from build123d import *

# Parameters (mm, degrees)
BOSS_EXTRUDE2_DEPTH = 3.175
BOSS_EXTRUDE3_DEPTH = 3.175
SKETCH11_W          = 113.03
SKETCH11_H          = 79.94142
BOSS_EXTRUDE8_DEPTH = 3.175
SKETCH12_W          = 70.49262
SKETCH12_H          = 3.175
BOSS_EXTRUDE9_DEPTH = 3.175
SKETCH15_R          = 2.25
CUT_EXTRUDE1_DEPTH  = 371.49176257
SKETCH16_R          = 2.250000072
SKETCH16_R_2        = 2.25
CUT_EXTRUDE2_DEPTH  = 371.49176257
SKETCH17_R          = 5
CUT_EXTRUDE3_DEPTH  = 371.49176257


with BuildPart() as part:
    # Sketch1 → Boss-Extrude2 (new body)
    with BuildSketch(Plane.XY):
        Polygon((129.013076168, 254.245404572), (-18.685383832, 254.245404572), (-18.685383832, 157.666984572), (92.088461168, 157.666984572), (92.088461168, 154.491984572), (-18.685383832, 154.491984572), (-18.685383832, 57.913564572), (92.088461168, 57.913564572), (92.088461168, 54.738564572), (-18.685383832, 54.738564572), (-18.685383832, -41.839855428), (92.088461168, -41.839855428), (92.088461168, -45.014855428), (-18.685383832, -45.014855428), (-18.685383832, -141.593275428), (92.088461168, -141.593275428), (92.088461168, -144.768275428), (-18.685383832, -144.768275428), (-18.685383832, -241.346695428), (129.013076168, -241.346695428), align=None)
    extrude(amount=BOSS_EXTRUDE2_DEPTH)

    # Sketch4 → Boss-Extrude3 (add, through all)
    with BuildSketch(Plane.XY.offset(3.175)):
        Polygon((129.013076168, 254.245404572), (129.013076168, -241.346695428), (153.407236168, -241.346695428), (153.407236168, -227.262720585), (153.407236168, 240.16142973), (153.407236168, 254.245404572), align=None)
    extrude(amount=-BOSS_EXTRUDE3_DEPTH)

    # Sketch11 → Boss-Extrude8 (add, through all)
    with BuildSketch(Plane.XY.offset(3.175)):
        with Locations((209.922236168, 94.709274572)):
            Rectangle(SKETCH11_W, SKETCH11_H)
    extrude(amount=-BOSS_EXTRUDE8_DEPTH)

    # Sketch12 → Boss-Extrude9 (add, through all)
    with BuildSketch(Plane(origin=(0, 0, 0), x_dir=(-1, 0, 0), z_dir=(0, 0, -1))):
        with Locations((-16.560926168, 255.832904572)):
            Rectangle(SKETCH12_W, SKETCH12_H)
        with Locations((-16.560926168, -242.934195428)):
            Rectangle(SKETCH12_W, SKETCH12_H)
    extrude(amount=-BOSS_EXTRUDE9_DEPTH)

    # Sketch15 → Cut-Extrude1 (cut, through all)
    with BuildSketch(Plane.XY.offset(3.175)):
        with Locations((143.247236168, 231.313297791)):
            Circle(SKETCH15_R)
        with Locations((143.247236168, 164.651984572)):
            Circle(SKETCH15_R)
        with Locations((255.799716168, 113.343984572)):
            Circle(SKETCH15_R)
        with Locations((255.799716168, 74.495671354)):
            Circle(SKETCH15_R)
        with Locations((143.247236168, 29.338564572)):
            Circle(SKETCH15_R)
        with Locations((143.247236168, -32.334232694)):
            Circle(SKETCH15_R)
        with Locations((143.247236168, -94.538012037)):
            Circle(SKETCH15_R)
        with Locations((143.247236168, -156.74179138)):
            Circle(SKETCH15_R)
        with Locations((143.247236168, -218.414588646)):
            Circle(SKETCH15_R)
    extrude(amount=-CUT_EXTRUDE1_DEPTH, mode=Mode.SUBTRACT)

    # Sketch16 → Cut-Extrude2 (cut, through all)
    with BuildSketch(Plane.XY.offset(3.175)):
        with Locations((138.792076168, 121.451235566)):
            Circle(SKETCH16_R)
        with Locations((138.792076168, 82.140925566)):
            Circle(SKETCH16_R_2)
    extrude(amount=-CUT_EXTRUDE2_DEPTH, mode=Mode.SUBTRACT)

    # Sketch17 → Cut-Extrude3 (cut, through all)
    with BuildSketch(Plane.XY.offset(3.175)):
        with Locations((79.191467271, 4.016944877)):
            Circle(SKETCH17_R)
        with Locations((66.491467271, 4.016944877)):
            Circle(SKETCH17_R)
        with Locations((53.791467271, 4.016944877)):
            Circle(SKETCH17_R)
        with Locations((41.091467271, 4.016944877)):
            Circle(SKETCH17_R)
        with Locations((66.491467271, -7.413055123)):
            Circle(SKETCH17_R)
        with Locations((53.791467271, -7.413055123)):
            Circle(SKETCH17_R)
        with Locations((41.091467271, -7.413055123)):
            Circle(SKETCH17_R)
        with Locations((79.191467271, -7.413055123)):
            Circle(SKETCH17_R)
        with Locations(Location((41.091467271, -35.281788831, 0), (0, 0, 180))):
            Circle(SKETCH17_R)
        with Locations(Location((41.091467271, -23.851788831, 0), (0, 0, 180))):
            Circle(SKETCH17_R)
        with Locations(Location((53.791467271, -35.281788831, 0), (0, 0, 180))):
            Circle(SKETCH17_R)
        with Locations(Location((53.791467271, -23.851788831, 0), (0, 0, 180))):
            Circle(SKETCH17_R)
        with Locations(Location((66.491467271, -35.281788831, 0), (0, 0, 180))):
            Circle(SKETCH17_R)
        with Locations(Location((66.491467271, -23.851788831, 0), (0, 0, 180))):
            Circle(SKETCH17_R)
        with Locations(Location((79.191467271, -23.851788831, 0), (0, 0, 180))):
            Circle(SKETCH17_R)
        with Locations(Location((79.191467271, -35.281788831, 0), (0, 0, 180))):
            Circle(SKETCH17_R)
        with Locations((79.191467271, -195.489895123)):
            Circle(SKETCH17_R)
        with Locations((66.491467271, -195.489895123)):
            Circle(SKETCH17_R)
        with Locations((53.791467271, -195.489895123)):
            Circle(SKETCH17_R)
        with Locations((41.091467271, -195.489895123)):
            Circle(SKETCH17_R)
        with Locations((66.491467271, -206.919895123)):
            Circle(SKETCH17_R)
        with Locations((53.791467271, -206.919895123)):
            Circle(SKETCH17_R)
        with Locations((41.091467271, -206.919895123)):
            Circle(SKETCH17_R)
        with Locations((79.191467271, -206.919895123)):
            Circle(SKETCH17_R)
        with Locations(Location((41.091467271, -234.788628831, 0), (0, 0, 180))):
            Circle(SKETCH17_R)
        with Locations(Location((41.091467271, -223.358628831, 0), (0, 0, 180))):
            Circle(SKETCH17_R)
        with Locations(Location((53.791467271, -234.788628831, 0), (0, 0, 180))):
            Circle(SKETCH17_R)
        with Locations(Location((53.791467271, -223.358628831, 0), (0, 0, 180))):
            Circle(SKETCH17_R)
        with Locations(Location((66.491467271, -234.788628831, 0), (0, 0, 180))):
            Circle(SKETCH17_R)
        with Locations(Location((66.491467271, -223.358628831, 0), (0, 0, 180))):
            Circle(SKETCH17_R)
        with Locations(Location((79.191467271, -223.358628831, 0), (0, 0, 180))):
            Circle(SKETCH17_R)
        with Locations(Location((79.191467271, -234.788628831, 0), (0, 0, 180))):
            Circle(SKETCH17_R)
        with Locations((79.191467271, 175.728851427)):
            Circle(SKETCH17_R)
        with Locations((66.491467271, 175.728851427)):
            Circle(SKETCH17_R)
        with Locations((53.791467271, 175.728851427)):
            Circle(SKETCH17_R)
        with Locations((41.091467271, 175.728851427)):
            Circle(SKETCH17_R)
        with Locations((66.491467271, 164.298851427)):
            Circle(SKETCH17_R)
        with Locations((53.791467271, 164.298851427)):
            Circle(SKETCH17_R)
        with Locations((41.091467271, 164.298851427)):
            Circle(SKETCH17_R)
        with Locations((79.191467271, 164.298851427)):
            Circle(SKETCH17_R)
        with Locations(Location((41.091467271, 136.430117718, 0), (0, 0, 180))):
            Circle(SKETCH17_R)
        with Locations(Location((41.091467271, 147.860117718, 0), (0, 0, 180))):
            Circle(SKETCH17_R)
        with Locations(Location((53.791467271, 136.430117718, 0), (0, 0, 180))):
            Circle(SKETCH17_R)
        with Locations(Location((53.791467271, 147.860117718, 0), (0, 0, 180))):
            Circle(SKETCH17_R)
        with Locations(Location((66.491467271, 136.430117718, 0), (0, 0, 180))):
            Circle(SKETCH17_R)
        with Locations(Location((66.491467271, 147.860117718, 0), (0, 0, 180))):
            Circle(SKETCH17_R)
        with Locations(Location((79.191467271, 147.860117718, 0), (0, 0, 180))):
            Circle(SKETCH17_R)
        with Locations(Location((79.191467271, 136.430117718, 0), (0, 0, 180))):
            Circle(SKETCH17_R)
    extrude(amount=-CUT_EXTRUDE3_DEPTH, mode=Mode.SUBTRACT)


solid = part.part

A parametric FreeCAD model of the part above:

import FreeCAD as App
import Part
import Sketcher
Q = App.Units.Quantity


def add_polygon(sketch, points):
    """Adds a closed chain of lines whose ends are joined by coincident constraints."""
    first, n = sketch.GeometryCount, len(points)
    for a, b in zip(points, points[1:] + points[:1]):
        sketch.addGeometry(Part.LineSegment(App.Vector(*a, 0), App.Vector(*b, 0)), False)
    for i in range(n):
        sketch.addConstraint(Sketcher.Constraint("Coincident", first + i, 2, first + (i + 1) % n, 1))

doc = App.newDocument("Part")
body = doc.addObject("PartDesign::Body", "Body")

# Sketch on XY plane
sketch1 = doc.addObject("Sketcher::SketchObject", "Sketch")
body.addObject(sketch1)
sketch1.AttachmentSupport = (doc.XY_Plane, [""])
sketch1.MapMode = "FlatFace"
add_polygon(sketch1, [(129, 254.2), (-18.7, 254.2), (-18.7, 157.7), (92.1, 157.7), (92.1, 154.5), (-18.7, 154.5), (-18.7, 57.9), (92.1, 57.9), (92.1, 54.7), (-18.7, 54.7), (-18.7, -41.8), (92.1, -41.8), (92.1, -45), (-18.7, -45), (-18.7, -141.6), (92.1, -141.6), (92.1, -144.8), (-18.7, -144.8), (-18.7, -241.3), (129, -241.3)])  # lines 0-19
sketch1.addConstraint(Sketcher.Constraint("Horizontal", 0))
sketch1.addConstraint(Sketcher.Constraint("Vertical", 1))
sketch1.addConstraint(Sketcher.Constraint("Horizontal", 2))
sketch1.addConstraint(Sketcher.Constraint("Vertical", 3))
sketch1.addConstraint(Sketcher.Constraint("Horizontal", 4))
sketch1.addConstraint(Sketcher.Constraint("Vertical", 5))
sketch1.addConstraint(Sketcher.Constraint("Horizontal", 6))
sketch1.addConstraint(Sketcher.Constraint("Vertical", 7))
sketch1.addConstraint(Sketcher.Constraint("Horizontal", 8))
sketch1.addConstraint(Sketcher.Constraint("Vertical", 9))
sketch1.addConstraint(Sketcher.Constraint("Horizontal", 10))
sketch1.addConstraint(Sketcher.Constraint("Vertical", 11))
sketch1.addConstraint(Sketcher.Constraint("Horizontal", 12))
sketch1.addConstraint(Sketcher.Constraint("Vertical", 13))
sketch1.addConstraint(Sketcher.Constraint("Horizontal", 14))
sketch1.addConstraint(Sketcher.Constraint("Vertical", 15))
sketch1.addConstraint(Sketcher.Constraint("Horizontal", 16))
sketch1.addConstraint(Sketcher.Constraint("Vertical", 17))
sketch1.addConstraint(Sketcher.Constraint("Horizontal", 18))
sketch1.addConstraint(Sketcher.Constraint("Vertical", 19))
sketch1.addConstraint(Sketcher.Constraint("Vertical", 1, 2, 4, 2))
sketch1.addConstraint(Sketcher.Constraint("Vertical", 3, 2, 6, 2))
sketch1.addConstraint(Sketcher.Constraint("Vertical", 5, 2, 8, 2))
sketch1.addConstraint(Sketcher.Constraint("Vertical", 7, 2, 10, 2))
sketch1.addConstraint(Sketcher.Constraint("Vertical", 9, 2, 12, 2))
sketch1.addConstraint(Sketcher.Constraint("Vertical", 11, 2, 14, 2))
sketch1.addConstraint(Sketcher.Constraint("Vertical", 13, 2, 16, 2))
sketch1.addConstraint(Sketcher.Constraint("Equal", 1, 5))
sketch1.addConstraint(Sketcher.Constraint("Equal", 3, 7))
sketch1.addConstraint(Sketcher.Constraint("Equal", 5, 9))
sketch1.addConstraint(Sketcher.Constraint("Equal", 7, 11))
sketch1.addConstraint(Sketcher.Constraint("Equal", 9, 13))
sketch1.addConstraint(Sketcher.Constraint("Equal", 11, 15))
sketch1.addConstraint(Sketcher.Constraint("Equal", 13, 17))
sketch1.addConstraint(Sketcher.Constraint("DistanceY", 3, 2, 3, 1, Q("3.175 mm")))
sketch1.addConstraint(Sketcher.Constraint("DistanceY", 19, 1, 19, 2, Q("495.5921 mm")))
sketch1.addConstraint(Sketcher.Constraint("DistanceX", 0, 2, 0, 1, Q("147.69846 mm")))
sketch1.addConstraint(Sketcher.Constraint("DistanceX", 2, 1, 2, 2, Q("110.773845 mm")))
sketch1.addConstraint(Sketcher.Constraint("DistanceX", -1, 1, 2, 2, Q("92.088461 mm")))
sketch1.addConstraint(Sketcher.Constraint("DistanceY", -1, 1, 0, 2, Q("254.245405 mm")))
pad1 = doc.addObject("PartDesign::Pad", "Pad")
body.addObject(pad1)
pad1.Profile = sketch1
pad1.Length = 3.175

# Sketch on XY plane
sketch2 = doc.addObject("Sketcher::SketchObject", "Sketch001")
body.addObject(sketch2)
sketch2.AttachmentSupport = (doc.XY_Plane, [""])
sketch2.MapMode = "FlatFace"
sketch2.AttachmentOffset = App.Placement(App.Vector(0, 0, 3.175), App.Rotation())
add_polygon(sketch2, [(129, 254), (129, -241), (153, -241), (153, 254)])  # lines 0-3
sketch2.addConstraint(Sketcher.Constraint("Vertical", 0))
sketch2.addConstraint(Sketcher.Constraint("Horizontal", 1))
sketch2.addConstraint(Sketcher.Constraint("Vertical", 2))
sketch2.addConstraint(Sketcher.Constraint("Horizontal", 3))
sketch2.addConstraint(Sketcher.Constraint("DistanceY", 0, 2, 0, 1, Q("495.5921 mm")))
sketch2.addConstraint(Sketcher.Constraint("DistanceX", 1, 1, 1, 2, Q("24.39416 mm")))
sketch2.addConstraint(Sketcher.Constraint("DistanceX", -1, 1, 0, 2, Q("129.013076 mm")))
sketch2.addConstraint(Sketcher.Constraint("DistanceY", 0, 2, -1, 1, Q("241.346695 mm")))
pad2 = doc.addObject("PartDesign::Pad", "Pad001")
body.addObject(pad2)
pad2.Profile = sketch2
pad2.Length = 3.175
pad2.Reversed = True

# Sketch on XY plane
sketch3 = doc.addObject("Sketcher::SketchObject", "Sketch002")
body.addObject(sketch3)
sketch3.AttachmentSupport = (doc.XY_Plane, [""])
sketch3.MapMode = "FlatFace"
sketch3.AttachmentOffset = App.Placement(App.Vector(0, 0, 3.175), App.Rotation())
add_polygon(sketch3, [(153, 135), (153, 55), (266, 55), (266, 135)])  # lines 0-3
sketch3.addConstraint(Sketcher.Constraint("Vertical", 0))
sketch3.addConstraint(Sketcher.Constraint("Horizontal", 1))
sketch3.addConstraint(Sketcher.Constraint("Vertical", 2))
sketch3.addConstraint(Sketcher.Constraint("Horizontal", 3))
sketch3.addConstraint(Sketcher.Constraint("DistanceX", 1, 1, 1, 2, Q("113.03 mm")))
sketch3.addConstraint(Sketcher.Constraint("DistanceY", 0, 2, 0, 1, Q("79.94142 mm")))
sketch3.addConstraint(Sketcher.Constraint("DistanceX", -1, 1, 0, 2, Q("153.407236 mm")))
sketch3.addConstraint(Sketcher.Constraint("DistanceY", -1, 1, 0, 2, Q("54.738565 mm")))
pad3 = doc.addObject("PartDesign::Pad", "Pad002")
body.addObject(pad3)
pad3.Profile = sketch3
pad3.Length = 3.175
pad3.Reversed = True

# Sketch on XY plane
sketch4 = doc.addObject("Sketcher::SketchObject", "Sketch003")
body.addObject(sketch4)
sketch4.AttachmentSupport = (doc.XY_Plane, [""])
sketch4.MapMode = "FlatFace"
add_polygon(sketch4, [(51.8, 257.4), (51.8, 254.2), (-18.7, 254.2), (-18.7, 257.4)])  # lines 0-3
add_polygon(sketch4, [(51.8, -241.3), (51.8, -244.5), (-18.7, -244.5), (-18.7, -241.3)])  # lines 4-7
sketch4.addConstraint(Sketcher.Constraint("Vertical", 0))
sketch4.addConstraint(Sketcher.Constraint("Horizontal", 1))
sketch4.addConstraint(Sketcher.Constraint("Vertical", 2))
sketch4.addConstraint(Sketcher.Constraint("Horizontal", 3))
sketch4.addConstraint(Sketcher.Constraint("Vertical", 4))
sketch4.addConstraint(Sketcher.Constraint("Horizontal", 5))
sketch4.addConstraint(Sketcher.Constraint("Vertical", 6))
sketch4.addConstraint(Sketcher.Constraint("Horizontal", 7))
sketch4.addConstraint(Sketcher.Constraint("Vertical", 3, 2, 4, 2))
sketch4.addConstraint(Sketcher.Constraint("Vertical", 2, 2, 5, 2))
sketch4.addConstraint(Sketcher.Constraint("Equal", 2, 4))
sketch4.addConstraint(Sketcher.Constraint("DistanceY", 0, 2, 0, 1, Q("3.175 mm")))
sketch4.addConstraint(Sketcher.Constraint("DistanceX", 1, 2, 1, 1, Q("70.49262 mm")))
sketch4.addConstraint(Sketcher.Constraint("DistanceY", 4, 2, 0, 2, Q("498.7671 mm")))
sketch4.addConstraint(Sketcher.Constraint("DistanceX", -1, 1, 0, 2, Q("51.807236 mm")))
sketch4.addConstraint(Sketcher.Constraint("DistanceY", -1, 1, 0, 2, Q("254.245405 mm")))
pad4 = doc.addObject("PartDesign::Pad", "Pad003")
body.addObject(pad4)
pad4.Profile = sketch4
pad4.Type = "UpToLast"

# Sketch on XY plane
sketch5 = doc.addObject("Sketcher::SketchObject", "Sketch004")
body.addObject(sketch5)
sketch5.AttachmentSupport = (doc.XY_Plane, [""])
sketch5.MapMode = "FlatFace"
sketch5.AttachmentOffset = App.Placement(App.Vector(0, 0, 3.175), App.Rotation())
sketch5.addGeometry(Part.Circle(App.Vector(143.2, 231.3, 0), App.Vector(0, 0, 1), 2.2), False)
sketch5.addGeometry(Part.Circle(App.Vector(143.2, 164.7, 0), App.Vector(0, 0, 1), 2.2), False)
sketch5.addGeometry(Part.Circle(App.Vector(255.8, 113.3, 0), App.Vector(0, 0, 1), 2.2), False)
sketch5.addGeometry(Part.Circle(App.Vector(255.8, 74.5, 0), App.Vector(0, 0, 1), 2.2), False)
sketch5.addGeometry(Part.Circle(App.Vector(143.2, 29.3, 0), App.Vector(0, 0, 1), 2.2), False)
sketch5.addGeometry(Part.Circle(App.Vector(143.2, -32.3, 0), App.Vector(0, 0, 1), 2.2), False)
sketch5.addGeometry(Part.Circle(App.Vector(143.2, -94.5, 0), App.Vector(0, 0, 1), 2.2), False)
sketch5.addGeometry(Part.Circle(App.Vector(143.2, -156.7, 0), App.Vector(0, 0, 1), 2.2), False)
sketch5.addGeometry(Part.Circle(App.Vector(143.2, -218.4, 0), App.Vector(0, 0, 1), 2.2), False)
sketch5.addConstraint(Sketcher.Constraint("Equal", 0, 1))
sketch5.addConstraint(Sketcher.Constraint("Equal", 1, 2))
sketch5.addConstraint(Sketcher.Constraint("Equal", 2, 3))
sketch5.addConstraint(Sketcher.Constraint("Equal", 3, 4))
sketch5.addConstraint(Sketcher.Constraint("Equal", 4, 5))
sketch5.addConstraint(Sketcher.Constraint("Equal", 5, 6))
sketch5.addConstraint(Sketcher.Constraint("Equal", 6, 7))
sketch5.addConstraint(Sketcher.Constraint("Equal", 7, 8))
sketch5.addConstraint(Sketcher.Constraint("Vertical", 0, 3, 1, 3))
sketch5.addConstraint(Sketcher.Constraint("Vertical", 2, 3, 3, 3))
sketch5.addConstraint(Sketcher.Constraint("Vertical", 1, 3, 4, 3))
sketch5.addConstraint(Sketcher.Constraint("Vertical", 4, 3, 5, 3))
sketch5.addConstraint(Sketcher.Constraint("Vertical", 5, 3, 6, 3))
sketch5.addConstraint(Sketcher.Constraint("Vertical", 6, 3, 7, 3))
sketch5.addConstraint(Sketcher.Constraint("Vertical", 7, 3, 8, 3))
sketch5.addConstraint(Sketcher.Constraint("Diameter", 0, Q("4.5 mm")))
sketch5.addConstraint(Sketcher.Constraint("DistanceY", 2, 3, 1, 3, Q("51.308 mm")))
sketch5.addConstraint(Sketcher.Constraint("DistanceY", -1, 1, 3, 3, Q("74.495671 mm")))
sketch5.addConstraint(Sketcher.Constraint("DistanceY", 7, 3, -1, 1, Q("156.741791 mm")))
sketch5.addConstraint(Sketcher.Constraint("DistanceY", 8, 3, -1, 1, Q("218.414589 mm")))
sketch5.addConstraint(Sketcher.Constraint("DistanceX", 1, 3, 2, 3, Q("112.55248 mm")))
sketch5.addConstraint(Sketcher.Constraint("DistanceY", 4, 3, 1, 3, Q("135.31342 mm")))
sketch5.addConstraint(Sketcher.Constraint("DistanceY", 5, 3, 0, 3, Q("263.64753 mm")))
sketch5.addConstraint(Sketcher.Constraint("DistanceY", 6, 3, 5, 3, Q("62.203779 mm")))
sketch5.addConstraint(Sketcher.Constraint("DistanceY", 7, 3, 6, 3, Q("62.203779 mm")))
sketch5.addConstraint(Sketcher.Constraint("DistanceX", -1, 1, 0, 3, Q("143.247236 mm")))
sketch5.addConstraint(Sketcher.Constraint("DistanceY", -1, 1, 1, 3, Q("164.651985 mm")))
pocket1 = doc.addObject("PartDesign::Pocket", "Pocket")
body.addObject(pocket1)
pocket1.Profile = sketch5
pocket1.Type = "ThroughAll"

# Sketch on XY plane
sketch6 = doc.addObject("Sketcher::SketchObject", "Sketch005")
body.addObject(sketch6)
sketch6.AttachmentSupport = (doc.XY_Plane, [""])
sketch6.MapMode = "FlatFace"
sketch6.AttachmentOffset = App.Placement(App.Vector(0, 0, 3.175), App.Rotation())
sketch6.addGeometry(Part.Circle(App.Vector(138.8, 121.5, 0), App.Vector(0, 0, 1), 2.3), False)
sketch6.addGeometry(Part.Circle(App.Vector(138.8, 82.1, 0), App.Vector(0, 0, 1), 2.2), False)
sketch6.addConstraint(Sketcher.Constraint("Equal", 0, 1))
sketch6.addConstraint(Sketcher.Constraint("Vertical", 0, 3, 1, 3))
sketch6.addConstraint(Sketcher.Constraint("Diameter", 0, Q("4.5 mm")))
sketch6.addConstraint(Sketcher.Constraint("DistanceY", 1, 3, 0, 3, Q("39.31031 mm")))
sketch6.addConstraint(Sketcher.Constraint("DistanceX", -1, 1, 0, 3, Q("138.792076 mm")))
sketch6.addConstraint(Sketcher.Constraint("DistanceY", -1, 1, 0, 3, Q("121.451236 mm")))
pocket2 = doc.addObject("PartDesign::Pocket", "Pocket001")
body.addObject(pocket2)
pocket2.Profile = sketch6
pocket2.Type = "ThroughAll"

# Sketch on XY plane
sketch7 = doc.addObject("Sketcher::SketchObject", "Sketch006")
body.addObject(sketch7)
sketch7.AttachmentSupport = (doc.XY_Plane, [""])
sketch7.MapMode = "FlatFace"
sketch7.AttachmentOffset = App.Placement(App.Vector(0, 0, 3.175), App.Rotation())
sketch7.addGeometry(Part.Circle(App.Vector(79, 4, 0), App.Vector(0, 0, 1), 5), False)
sketch7.addGeometry(Part.Circle(App.Vector(66, 4, 0), App.Vector(0, 0, 1), 5), False)
sketch7.addGeometry(Part.Circle(App.Vector(54, 4, 0), App.Vector(0, 0, 1), 5), False)
sketch7.addGeometry(Part.Circle(App.Vector(41, 4, 0), App.Vector(0, 0, 1), 5), False)
sketch7.addGeometry(Part.Circle(App.Vector(66, -7, 0), App.Vector(0, 0, 1), 5), False)
sketch7.addGeometry(Part.Circle(App.Vector(54, -7, 0), App.Vector(0, 0, 1), 5), False)
sketch7.addGeometry(Part.Circle(App.Vector(41, -7, 0), App.Vector(0, 0, 1), 5), False)
sketch7.addGeometry(Part.Circle(App.Vector(79, -7, 0), App.Vector(0, 0, 1), 5), False)
sketch7.addGeometry(Part.Circle(App.Vector(41, -35, 0), App.Vector(0, 0, 1), 5), False)
sketch7.addGeometry(Part.Circle(App.Vector(41, -24, 0), App.Vector(0, 0, 1), 5), False)
sketch7.addGeometry(Part.Circle(App.Vector(54, -35, 0), App.Vector(0, 0, 1), 5), False)
sketch7.addGeometry(Part.Circle(App.Vector(54, -24, 0), App.Vector(0, 0, 1), 5), False)
sketch7.addGeometry(Part.Circle(App.Vector(66, -35, 0), App.Vector(0, 0, 1), 5), False)
sketch7.addGeometry(Part.Circle(App.Vector(66, -24, 0), App.Vector(0, 0, 1), 5), False)
sketch7.addGeometry(Part.Circle(App.Vector(79, -24, 0), App.Vector(0, 0, 1), 5), False)
sketch7.addGeometry(Part.Circle(App.Vector(79, -35, 0), App.Vector(0, 0, 1), 5), False)
sketch7.addGeometry(Part.Circle(App.Vector(79, -195, 0), App.Vector(0, 0, 1), 5), False)
sketch7.addGeometry(Part.Circle(App.Vector(66, -195, 0), App.Vector(0, 0, 1), 5), False)
sketch7.addGeometry(Part.Circle(App.Vector(54, -195, 0), App.Vector(0, 0, 1), 5), False)
sketch7.addGeometry(Part.Circle(App.Vector(41, -195, 0), App.Vector(0, 0, 1), 5), False)
sketch7.addGeometry(Part.Circle(App.Vector(66, -207, 0), App.Vector(0, 0, 1), 5), False)
sketch7.addGeometry(Part.Circle(App.Vector(54, -207, 0), App.Vector(0, 0, 1), 5), False)
sketch7.addGeometry(Part.Circle(App.Vector(41, -207, 0), App.Vector(0, 0, 1), 5), False)
sketch7.addGeometry(Part.Circle(App.Vector(79, -207, 0), App.Vector(0, 0, 1), 5), False)
sketch7.addGeometry(Part.Circle(App.Vector(41, -235, 0), App.Vector(0, 0, 1), 5), False)
sketch7.addGeometry(Part.Circle(App.Vector(41, -223, 0), App.Vector(0, 0, 1), 5), False)
sketch7.addGeometry(Part.Circle(App.Vector(54, -235, 0), App.Vector(0, 0, 1), 5), False)
sketch7.addGeometry(Part.Circle(App.Vector(54, -223, 0), App.Vector(0, 0, 1), 5), False)
sketch7.addGeometry(Part.Circle(App.Vector(66, -235, 0), App.Vector(0, 0, 1), 5), False)
sketch7.addGeometry(Part.Circle(App.Vector(66, -223, 0), App.Vector(0, 0, 1), 5), False)
sketch7.addGeometry(Part.Circle(App.Vector(79, -223, 0), App.Vector(0, 0, 1), 5), False)
sketch7.addGeometry(Part.Circle(App.Vector(79, -235, 0), App.Vector(0, 0, 1), 5), False)
sketch7.addGeometry(Part.Circle(App.Vector(79, 176, 0), App.Vector(0, 0, 1), 5), False)
sketch7.addGeometry(Part.Circle(App.Vector(66, 176, 0), App.Vector(0, 0, 1), 5), False)
sketch7.addGeometry(Part.Circle(App.Vector(54, 176, 0), App.Vector(0, 0, 1), 5), False)
sketch7.addGeometry(Part.Circle(App.Vector(41, 176, 0), App.Vector(0, 0, 1), 5), False)
sketch7.addGeometry(Part.Circle(App.Vector(66, 164, 0), App.Vector(0, 0, 1), 5), False)
sketch7.addGeometry(Part.Circle(App.Vector(54, 164, 0), App.Vector(0, 0, 1), 5), False)
sketch7.addGeometry(Part.Circle(App.Vector(41, 164, 0), App.Vector(0, 0, 1), 5), False)
sketch7.addGeometry(Part.Circle(App.Vector(79, 164, 0), App.Vector(0, 0, 1), 5), False)
sketch7.addGeometry(Part.Circle(App.Vector(41, 136, 0), App.Vector(0, 0, 1), 5), False)
sketch7.addGeometry(Part.Circle(App.Vector(41, 148, 0), App.Vector(0, 0, 1), 5), False)
sketch7.addGeometry(Part.Circle(App.Vector(54, 136, 0), App.Vector(0, 0, 1), 5), False)
sketch7.addGeometry(Part.Circle(App.Vector(54, 148, 0), App.Vector(0, 0, 1), 5), False)
sketch7.addGeometry(Part.Circle(App.Vector(66, 136, 0), App.Vector(0, 0, 1), 5), False)
sketch7.addGeometry(Part.Circle(App.Vector(66, 148, 0), App.Vector(0, 0, 1), 5), False)
sketch7.addGeometry(Part.Circle(App.Vector(79, 148, 0), App.Vector(0, 0, 1), 5), False)
sketch7.addGeometry(Part.Circle(App.Vector(79, 136, 0), App.Vector(0, 0, 1), 5), False)
sketch7.addConstraint(Sketcher.Constraint("Equal", 0, 1))
sketch7.addConstraint(Sketcher.Constraint("Equal", 1, 2))
sketch7.addConstraint(Sketcher.Constraint("Equal", 2, 3))
sketch7.addConstraint(Sketcher.Constraint("Equal", 3, 4))
sketch7.addConstraint(Sketcher.Constraint("Equal", 4, 5))
sketch7.addConstraint(Sketcher.Constraint("Equal", 5, 6))
sketch7.addConstraint(Sketcher.Constraint("Equal", 6, 7))
sketch7.addConstraint(Sketcher.Constraint("Equal", 7, 8))
sketch7.addConstraint(Sketcher.Constraint("Equal", 8, 9))
sketch7.addConstraint(Sketcher.Constraint("Equal", 9, 10))
sketch7.addConstraint(Sketcher.Constraint("Equal", 10, 11))
sketch7.addConstraint(Sketcher.Constraint("Equal", 11, 12))
sketch7.addConstraint(Sketcher.Constraint("Equal", 12, 13))
sketch7.addConstraint(Sketcher.Constraint("Equal", 13, 14))
sketch7.addConstraint(Sketcher.Constraint("Equal", 14, 15))
sketch7.addConstraint(Sketcher.Constraint("Equal", 15, 16))
sketch7.addConstraint(Sketcher.Constraint("Equal", 16, 17))
sketch7.addConstraint(Sketcher.Constraint("Equal", 17, 18))
sketch7.addConstraint(Sketcher.Constraint("Equal", 18, 19))
sketch7.addConstraint(Sketcher.Constraint("Equal", 19, 20))
sketch7.addConstraint(Sketcher.Constraint("Equal", 20, 21))
sketch7.addConstraint(Sketcher.Constraint("Equal", 21, 22))
sketch7.addConstraint(Sketcher.Constraint("Equal", 22, 23))
sketch7.addConstraint(Sketcher.Constraint("Equal", 23, 24))
sketch7.addConstraint(Sketcher.Constraint("Equal", 24, 25))
sketch7.addConstraint(Sketcher.Constraint("Equal", 25, 26))
sketch7.addConstraint(Sketcher.Constraint("Equal", 26, 27))
sketch7.addConstraint(Sketcher.Constraint("Equal", 27, 28))
sketch7.addConstraint(Sketcher.Constraint("Equal", 28, 29))
sketch7.addConstraint(Sketcher.Constraint("Equal", 29, 30))
sketch7.addConstraint(Sketcher.Constraint("Equal", 30, 31))
sketch7.addConstraint(Sketcher.Constraint("Equal", 31, 32))
sketch7.addConstraint(Sketcher.Constraint("Equal", 32, 33))
sketch7.addConstraint(Sketcher.Constraint("Equal", 33, 34))
sketch7.addConstraint(Sketcher.Constraint("Equal", 34, 35))
sketch7.addConstraint(Sketcher.Constraint("Equal", 35, 36))
sketch7.addConstraint(Sketcher.Constraint("Equal", 36, 37))
sketch7.addConstraint(Sketcher.Constraint("Equal", 37, 38))
sketch7.addConstraint(Sketcher.Constraint("Equal", 38, 39))
sketch7.addConstraint(Sketcher.Constraint("Equal", 39, 40))
sketch7.addConstraint(Sketcher.Constraint("Equal", 40, 41))
sketch7.addConstraint(Sketcher.Constraint("Equal", 41, 42))
sketch7.addConstraint(Sketcher.Constraint("Equal", 42, 43))
sketch7.addConstraint(Sketcher.Constraint("Equal", 43, 44))
sketch7.addConstraint(Sketcher.Constraint("Equal", 44, 45))
sketch7.addConstraint(Sketcher.Constraint("Equal", 45, 46))
sketch7.addConstraint(Sketcher.Constraint("Equal", 46, 47))
sketch7.addConstraint(Sketcher.Constraint("Horizontal", 0, 3, 1, 3))
sketch7.addConstraint(Sketcher.Constraint("Horizontal", 1, 3, 2, 3))
sketch7.addConstraint(Sketcher.Constraint("Horizontal", 2, 3, 3, 3))
sketch7.addConstraint(Sketcher.Constraint("Horizontal", 4, 3, 5, 3))
sketch7.addConstraint(Sketcher.Constraint("Horizontal", 5, 3, 6, 3))
sketch7.addConstraint(Sketcher.Constraint("Horizontal", 6, 3, 7, 3))
sketch7.addConstraint(Sketcher.Constraint("Horizontal", 8, 3, 10, 3))
sketch7.addConstraint(Sketcher.Constraint("Horizontal", 9, 3, 11, 3))
sketch7.addConstraint(Sketcher.Constraint("Horizontal", 10, 3, 12, 3))
sketch7.addConstraint(Sketcher.Constraint("Horizontal", 11, 3, 13, 3))
sketch7.addConstraint(Sketcher.Constraint("Horizontal", 13, 3, 14, 3))
sketch7.addConstraint(Sketcher.Constraint("Horizontal", 12, 3, 15, 3))
sketch7.addConstraint(Sketcher.Constraint("Horizontal", 16, 3, 17, 3))
sketch7.addConstraint(Sketcher.Constraint("Horizontal", 17, 3, 18, 3))
sketch7.addConstraint(Sketcher.Constraint("Horizontal", 18, 3, 19, 3))
sketch7.addConstraint(Sketcher.Constraint("Horizontal", 20, 3, 21, 3))
sketch7.addConstraint(Sketcher.Constraint("Horizontal", 21, 3, 22, 3))
sketch7.addConstraint(Sketcher.Constraint("Horizontal", 22, 3, 23, 3))
sketch7.addConstraint(Sketcher.Constraint("Horizontal", 24, 3, 26, 3))
sketch7.addConstraint(Sketcher.Constraint("Horizontal", 25, 3, 27, 3))
sketch7.addConstraint(Sketcher.Constraint("Horizontal", 26, 3, 28, 3))
sketch7.addConstraint(Sketcher.Constraint("Horizontal", 27, 3, 29, 3))
sketch7.addConstraint(Sketcher.Constraint("Horizontal", 29, 3, 30, 3))
sketch7.addConstraint(Sketcher.Constraint("Horizontal", 28, 3, 31, 3))
sketch7.addConstraint(Sketcher.Constraint("Horizontal", 32, 3, 33, 3))
sketch7.addConstraint(Sketcher.Constraint("Horizontal", 33, 3, 34, 3))
sketch7.addConstraint(Sketcher.Constraint("Horizontal", 34, 3, 35, 3))
sketch7.addConstraint(Sketcher.Constraint("Horizontal", 36, 3, 37, 3))
sketch7.addConstraint(Sketcher.Constraint("Horizontal", 37, 3, 38, 3))
sketch7.addConstraint(Sketcher.Constraint("Horizontal", 38, 3, 39, 3))
sketch7.addConstraint(Sketcher.Constraint("Horizontal", 40, 3, 42, 3))
sketch7.addConstraint(Sketcher.Constraint("Horizontal", 41, 3, 43, 3))
sketch7.addConstraint(Sketcher.Constraint("Horizontal", 42, 3, 44, 3))
sketch7.addConstraint(Sketcher.Constraint("Horizontal", 43, 3, 45, 3))
sketch7.addConstraint(Sketcher.Constraint("Horizontal", 45, 3, 46, 3))
sketch7.addConstraint(Sketcher.Constraint("Horizontal", 44, 3, 47, 3))
sketch7.addConstraint(Sketcher.Constraint("Vertical", 1, 3, 4, 3))
sketch7.addConstraint(Sketcher.Constraint("Vertical", 2, 3, 5, 3))
sketch7.addConstraint(Sketcher.Constraint("Vertical", 3, 3, 6, 3))
sketch7.addConstraint(Sketcher.Constraint("Vertical", 0, 3, 7, 3))
sketch7.addConstraint(Sketcher.Constraint("Vertical", 6, 3, 8, 3))
sketch7.addConstraint(Sketcher.Constraint("Vertical", 8, 3, 9, 3))
sketch7.addConstraint(Sketcher.Constraint("Vertical", 5, 3, 10, 3))
sketch7.addConstraint(Sketcher.Constraint("Vertical", 10, 3, 11, 3))
sketch7.addConstraint(Sketcher.Constraint("Vertical", 4, 3, 12, 3))
sketch7.addConstraint(Sketcher.Constraint("Vertical", 12, 3, 13, 3))
sketch7.addConstraint(Sketcher.Constraint("Vertical", 7, 3, 14, 3))
sketch7.addConstraint(Sketcher.Constraint("Vertical", 14, 3, 15, 3))
sketch7.addConstraint(Sketcher.Constraint("Vertical", 15, 3, 16, 3))
sketch7.addConstraint(Sketcher.Constraint("Vertical", 13, 3, 17, 3))
sketch7.addConstraint(Sketcher.Constraint("Vertical", 11, 3, 18, 3))
sketch7.addConstraint(Sketcher.Constraint("Vertical", 9, 3, 19, 3))
sketch7.addConstraint(Sketcher.Constraint("Vertical", 17, 3, 20, 3))
sketch7.addConstraint(Sketcher.Constraint("Vertical", 18, 3, 21, 3))
sketch7.addConstraint(Sketcher.Constraint("Vertical", 19, 3, 22, 3))
sketch7.addConstraint(Sketcher.Constraint("Vertical", 16, 3, 23, 3))
sketch7.addConstraint(Sketcher.Constraint("Vertical", 22, 3, 24, 3))
sketch7.addConstraint(Sketcher.Constraint("Vertical", 24, 3, 25, 3))
sketch7.addConstraint(Sketcher.Constraint("Vertical", 21, 3, 26, 3))
sketch7.addConstraint(Sketcher.Constraint("Vertical", 26, 3, 27, 3))
sketch7.addConstraint(Sketcher.Constraint("Vertical", 20, 3, 28, 3))
sketch7.addConstraint(Sketcher.Constraint("Vertical", 28, 3, 29, 3))
sketch7.addConstraint(Sketcher.Constraint("Vertical", 23, 3, 30, 3))
sketch7.addConstraint(Sketcher.Constraint("Vertical", 30, 3, 31, 3))
sketch7.addConstraint(Sketcher.Constraint("Vertical", 31, 3, 32, 3))
sketch7.addConstraint(Sketcher.Constraint("Vertical", 29, 3, 33, 3))
sketch7.addConstraint(Sketcher.Constraint("Vertical", 27, 3, 34, 3))
sketch7.addConstraint(Sketcher.Constraint("Vertical", 25, 3, 35, 3))
sketch7.addConstraint(Sketcher.Constraint("Vertical", 33, 3, 36, 3))
sketch7.addConstraint(Sketcher.Constraint("Vertical", 34, 3, 37, 3))
sketch7.addConstraint(Sketcher.Constraint("Vertical", 35, 3, 38, 3))
sketch7.addConstraint(Sketcher.Constraint("Vertical", 32, 3, 39, 3))
sketch7.addConstraint(Sketcher.Constraint("Vertical", 38, 3, 40, 3))
sketch7.addConstraint(Sketcher.Constraint("Vertical", 40, 3, 41, 3))
sketch7.addConstraint(Sketcher.Constraint("Vertical", 37, 3, 42, 3))
sketch7.addConstraint(Sketcher.Constraint("Vertical", 42, 3, 43, 3))
sketch7.addConstraint(Sketcher.Constraint("Vertical", 36, 3, 44, 3))
sketch7.addConstraint(Sketcher.Constraint("Vertical", 44, 3, 45, 3))
sketch7.addConstraint(Sketcher.Constraint("Vertical", 39, 3, 46, 3))
sketch7.addConstraint(Sketcher.Constraint("Vertical", 46, 3, 47, 3))
sketch7.addConstraint(Sketcher.Constraint("Diameter", 0, Q("10 mm")))
sketch7.addConstraint(Sketcher.Constraint("DistanceX", 1, 3, 0, 3, Q("12.7 mm")))
sketch7.addConstraint(Sketcher.Constraint("DistanceX", 2, 3, 1, 3, Q("12.7 mm")))
sketch7.addConstraint(Sketcher.Constraint("DistanceX", 3, 3, 2, 3, Q("12.7 mm")))
sketch7.addConstraint(Sketcher.Constraint("DistanceY", 4, 3, 1, 3, Q("11.43 mm")))
sketch7.addConstraint(Sketcher.Constraint("DistanceY", 8, 3, 9, 3, Q("11.43 mm")))
sketch7.addConstraint(Sketcher.Constraint("DistanceY", 20, 3, 17, 3, Q("11.43 mm")))
sketch7.addConstraint(Sketcher.Constraint("DistanceY", 24, 3, 25, 3, Q("11.43 mm")))
sketch7.addConstraint(Sketcher.Constraint("DistanceY", 36, 3, 33, 3, Q("11.43 mm")))
sketch7.addConstraint(Sketcher.Constraint("DistanceY", 40, 3, 41, 3, Q("11.43 mm")))
sketch7.addConstraint(Sketcher.Constraint("DistanceY", 8, 3, -1, 1, Q("35.281789 mm")))
sketch7.addConstraint(Sketcher.Constraint("DistanceY", 24, 3, -1, 1, Q("234.788629 mm")))
sketch7.addConstraint(Sketcher.Constraint("DistanceY", -1, 1, 32, 3, Q("175.728851 mm")))
sketch7.addConstraint(Sketcher.Constraint("DistanceX", -1, 1, 0, 3, Q("79.191467 mm")))
sketch7.addConstraint(Sketcher.Constraint("DistanceY", -1, 1, 0, 3, Q("4.016945 mm")))
sketch7.addConstraint(Sketcher.Constraint("DistanceY", 16, 3, -1, 1, Q("195.489895 mm")))
sketch7.addConstraint(Sketcher.Constraint("DistanceY", -1, 1, 40, 3, Q("136.430118 mm")))
pocket3 = doc.addObject("PartDesign::Pocket", "Pocket002")
body.addObject(pocket3)
pocket3.Profile = sketch7
pocket3.Type = "ThroughAll"

doc.recompute()
